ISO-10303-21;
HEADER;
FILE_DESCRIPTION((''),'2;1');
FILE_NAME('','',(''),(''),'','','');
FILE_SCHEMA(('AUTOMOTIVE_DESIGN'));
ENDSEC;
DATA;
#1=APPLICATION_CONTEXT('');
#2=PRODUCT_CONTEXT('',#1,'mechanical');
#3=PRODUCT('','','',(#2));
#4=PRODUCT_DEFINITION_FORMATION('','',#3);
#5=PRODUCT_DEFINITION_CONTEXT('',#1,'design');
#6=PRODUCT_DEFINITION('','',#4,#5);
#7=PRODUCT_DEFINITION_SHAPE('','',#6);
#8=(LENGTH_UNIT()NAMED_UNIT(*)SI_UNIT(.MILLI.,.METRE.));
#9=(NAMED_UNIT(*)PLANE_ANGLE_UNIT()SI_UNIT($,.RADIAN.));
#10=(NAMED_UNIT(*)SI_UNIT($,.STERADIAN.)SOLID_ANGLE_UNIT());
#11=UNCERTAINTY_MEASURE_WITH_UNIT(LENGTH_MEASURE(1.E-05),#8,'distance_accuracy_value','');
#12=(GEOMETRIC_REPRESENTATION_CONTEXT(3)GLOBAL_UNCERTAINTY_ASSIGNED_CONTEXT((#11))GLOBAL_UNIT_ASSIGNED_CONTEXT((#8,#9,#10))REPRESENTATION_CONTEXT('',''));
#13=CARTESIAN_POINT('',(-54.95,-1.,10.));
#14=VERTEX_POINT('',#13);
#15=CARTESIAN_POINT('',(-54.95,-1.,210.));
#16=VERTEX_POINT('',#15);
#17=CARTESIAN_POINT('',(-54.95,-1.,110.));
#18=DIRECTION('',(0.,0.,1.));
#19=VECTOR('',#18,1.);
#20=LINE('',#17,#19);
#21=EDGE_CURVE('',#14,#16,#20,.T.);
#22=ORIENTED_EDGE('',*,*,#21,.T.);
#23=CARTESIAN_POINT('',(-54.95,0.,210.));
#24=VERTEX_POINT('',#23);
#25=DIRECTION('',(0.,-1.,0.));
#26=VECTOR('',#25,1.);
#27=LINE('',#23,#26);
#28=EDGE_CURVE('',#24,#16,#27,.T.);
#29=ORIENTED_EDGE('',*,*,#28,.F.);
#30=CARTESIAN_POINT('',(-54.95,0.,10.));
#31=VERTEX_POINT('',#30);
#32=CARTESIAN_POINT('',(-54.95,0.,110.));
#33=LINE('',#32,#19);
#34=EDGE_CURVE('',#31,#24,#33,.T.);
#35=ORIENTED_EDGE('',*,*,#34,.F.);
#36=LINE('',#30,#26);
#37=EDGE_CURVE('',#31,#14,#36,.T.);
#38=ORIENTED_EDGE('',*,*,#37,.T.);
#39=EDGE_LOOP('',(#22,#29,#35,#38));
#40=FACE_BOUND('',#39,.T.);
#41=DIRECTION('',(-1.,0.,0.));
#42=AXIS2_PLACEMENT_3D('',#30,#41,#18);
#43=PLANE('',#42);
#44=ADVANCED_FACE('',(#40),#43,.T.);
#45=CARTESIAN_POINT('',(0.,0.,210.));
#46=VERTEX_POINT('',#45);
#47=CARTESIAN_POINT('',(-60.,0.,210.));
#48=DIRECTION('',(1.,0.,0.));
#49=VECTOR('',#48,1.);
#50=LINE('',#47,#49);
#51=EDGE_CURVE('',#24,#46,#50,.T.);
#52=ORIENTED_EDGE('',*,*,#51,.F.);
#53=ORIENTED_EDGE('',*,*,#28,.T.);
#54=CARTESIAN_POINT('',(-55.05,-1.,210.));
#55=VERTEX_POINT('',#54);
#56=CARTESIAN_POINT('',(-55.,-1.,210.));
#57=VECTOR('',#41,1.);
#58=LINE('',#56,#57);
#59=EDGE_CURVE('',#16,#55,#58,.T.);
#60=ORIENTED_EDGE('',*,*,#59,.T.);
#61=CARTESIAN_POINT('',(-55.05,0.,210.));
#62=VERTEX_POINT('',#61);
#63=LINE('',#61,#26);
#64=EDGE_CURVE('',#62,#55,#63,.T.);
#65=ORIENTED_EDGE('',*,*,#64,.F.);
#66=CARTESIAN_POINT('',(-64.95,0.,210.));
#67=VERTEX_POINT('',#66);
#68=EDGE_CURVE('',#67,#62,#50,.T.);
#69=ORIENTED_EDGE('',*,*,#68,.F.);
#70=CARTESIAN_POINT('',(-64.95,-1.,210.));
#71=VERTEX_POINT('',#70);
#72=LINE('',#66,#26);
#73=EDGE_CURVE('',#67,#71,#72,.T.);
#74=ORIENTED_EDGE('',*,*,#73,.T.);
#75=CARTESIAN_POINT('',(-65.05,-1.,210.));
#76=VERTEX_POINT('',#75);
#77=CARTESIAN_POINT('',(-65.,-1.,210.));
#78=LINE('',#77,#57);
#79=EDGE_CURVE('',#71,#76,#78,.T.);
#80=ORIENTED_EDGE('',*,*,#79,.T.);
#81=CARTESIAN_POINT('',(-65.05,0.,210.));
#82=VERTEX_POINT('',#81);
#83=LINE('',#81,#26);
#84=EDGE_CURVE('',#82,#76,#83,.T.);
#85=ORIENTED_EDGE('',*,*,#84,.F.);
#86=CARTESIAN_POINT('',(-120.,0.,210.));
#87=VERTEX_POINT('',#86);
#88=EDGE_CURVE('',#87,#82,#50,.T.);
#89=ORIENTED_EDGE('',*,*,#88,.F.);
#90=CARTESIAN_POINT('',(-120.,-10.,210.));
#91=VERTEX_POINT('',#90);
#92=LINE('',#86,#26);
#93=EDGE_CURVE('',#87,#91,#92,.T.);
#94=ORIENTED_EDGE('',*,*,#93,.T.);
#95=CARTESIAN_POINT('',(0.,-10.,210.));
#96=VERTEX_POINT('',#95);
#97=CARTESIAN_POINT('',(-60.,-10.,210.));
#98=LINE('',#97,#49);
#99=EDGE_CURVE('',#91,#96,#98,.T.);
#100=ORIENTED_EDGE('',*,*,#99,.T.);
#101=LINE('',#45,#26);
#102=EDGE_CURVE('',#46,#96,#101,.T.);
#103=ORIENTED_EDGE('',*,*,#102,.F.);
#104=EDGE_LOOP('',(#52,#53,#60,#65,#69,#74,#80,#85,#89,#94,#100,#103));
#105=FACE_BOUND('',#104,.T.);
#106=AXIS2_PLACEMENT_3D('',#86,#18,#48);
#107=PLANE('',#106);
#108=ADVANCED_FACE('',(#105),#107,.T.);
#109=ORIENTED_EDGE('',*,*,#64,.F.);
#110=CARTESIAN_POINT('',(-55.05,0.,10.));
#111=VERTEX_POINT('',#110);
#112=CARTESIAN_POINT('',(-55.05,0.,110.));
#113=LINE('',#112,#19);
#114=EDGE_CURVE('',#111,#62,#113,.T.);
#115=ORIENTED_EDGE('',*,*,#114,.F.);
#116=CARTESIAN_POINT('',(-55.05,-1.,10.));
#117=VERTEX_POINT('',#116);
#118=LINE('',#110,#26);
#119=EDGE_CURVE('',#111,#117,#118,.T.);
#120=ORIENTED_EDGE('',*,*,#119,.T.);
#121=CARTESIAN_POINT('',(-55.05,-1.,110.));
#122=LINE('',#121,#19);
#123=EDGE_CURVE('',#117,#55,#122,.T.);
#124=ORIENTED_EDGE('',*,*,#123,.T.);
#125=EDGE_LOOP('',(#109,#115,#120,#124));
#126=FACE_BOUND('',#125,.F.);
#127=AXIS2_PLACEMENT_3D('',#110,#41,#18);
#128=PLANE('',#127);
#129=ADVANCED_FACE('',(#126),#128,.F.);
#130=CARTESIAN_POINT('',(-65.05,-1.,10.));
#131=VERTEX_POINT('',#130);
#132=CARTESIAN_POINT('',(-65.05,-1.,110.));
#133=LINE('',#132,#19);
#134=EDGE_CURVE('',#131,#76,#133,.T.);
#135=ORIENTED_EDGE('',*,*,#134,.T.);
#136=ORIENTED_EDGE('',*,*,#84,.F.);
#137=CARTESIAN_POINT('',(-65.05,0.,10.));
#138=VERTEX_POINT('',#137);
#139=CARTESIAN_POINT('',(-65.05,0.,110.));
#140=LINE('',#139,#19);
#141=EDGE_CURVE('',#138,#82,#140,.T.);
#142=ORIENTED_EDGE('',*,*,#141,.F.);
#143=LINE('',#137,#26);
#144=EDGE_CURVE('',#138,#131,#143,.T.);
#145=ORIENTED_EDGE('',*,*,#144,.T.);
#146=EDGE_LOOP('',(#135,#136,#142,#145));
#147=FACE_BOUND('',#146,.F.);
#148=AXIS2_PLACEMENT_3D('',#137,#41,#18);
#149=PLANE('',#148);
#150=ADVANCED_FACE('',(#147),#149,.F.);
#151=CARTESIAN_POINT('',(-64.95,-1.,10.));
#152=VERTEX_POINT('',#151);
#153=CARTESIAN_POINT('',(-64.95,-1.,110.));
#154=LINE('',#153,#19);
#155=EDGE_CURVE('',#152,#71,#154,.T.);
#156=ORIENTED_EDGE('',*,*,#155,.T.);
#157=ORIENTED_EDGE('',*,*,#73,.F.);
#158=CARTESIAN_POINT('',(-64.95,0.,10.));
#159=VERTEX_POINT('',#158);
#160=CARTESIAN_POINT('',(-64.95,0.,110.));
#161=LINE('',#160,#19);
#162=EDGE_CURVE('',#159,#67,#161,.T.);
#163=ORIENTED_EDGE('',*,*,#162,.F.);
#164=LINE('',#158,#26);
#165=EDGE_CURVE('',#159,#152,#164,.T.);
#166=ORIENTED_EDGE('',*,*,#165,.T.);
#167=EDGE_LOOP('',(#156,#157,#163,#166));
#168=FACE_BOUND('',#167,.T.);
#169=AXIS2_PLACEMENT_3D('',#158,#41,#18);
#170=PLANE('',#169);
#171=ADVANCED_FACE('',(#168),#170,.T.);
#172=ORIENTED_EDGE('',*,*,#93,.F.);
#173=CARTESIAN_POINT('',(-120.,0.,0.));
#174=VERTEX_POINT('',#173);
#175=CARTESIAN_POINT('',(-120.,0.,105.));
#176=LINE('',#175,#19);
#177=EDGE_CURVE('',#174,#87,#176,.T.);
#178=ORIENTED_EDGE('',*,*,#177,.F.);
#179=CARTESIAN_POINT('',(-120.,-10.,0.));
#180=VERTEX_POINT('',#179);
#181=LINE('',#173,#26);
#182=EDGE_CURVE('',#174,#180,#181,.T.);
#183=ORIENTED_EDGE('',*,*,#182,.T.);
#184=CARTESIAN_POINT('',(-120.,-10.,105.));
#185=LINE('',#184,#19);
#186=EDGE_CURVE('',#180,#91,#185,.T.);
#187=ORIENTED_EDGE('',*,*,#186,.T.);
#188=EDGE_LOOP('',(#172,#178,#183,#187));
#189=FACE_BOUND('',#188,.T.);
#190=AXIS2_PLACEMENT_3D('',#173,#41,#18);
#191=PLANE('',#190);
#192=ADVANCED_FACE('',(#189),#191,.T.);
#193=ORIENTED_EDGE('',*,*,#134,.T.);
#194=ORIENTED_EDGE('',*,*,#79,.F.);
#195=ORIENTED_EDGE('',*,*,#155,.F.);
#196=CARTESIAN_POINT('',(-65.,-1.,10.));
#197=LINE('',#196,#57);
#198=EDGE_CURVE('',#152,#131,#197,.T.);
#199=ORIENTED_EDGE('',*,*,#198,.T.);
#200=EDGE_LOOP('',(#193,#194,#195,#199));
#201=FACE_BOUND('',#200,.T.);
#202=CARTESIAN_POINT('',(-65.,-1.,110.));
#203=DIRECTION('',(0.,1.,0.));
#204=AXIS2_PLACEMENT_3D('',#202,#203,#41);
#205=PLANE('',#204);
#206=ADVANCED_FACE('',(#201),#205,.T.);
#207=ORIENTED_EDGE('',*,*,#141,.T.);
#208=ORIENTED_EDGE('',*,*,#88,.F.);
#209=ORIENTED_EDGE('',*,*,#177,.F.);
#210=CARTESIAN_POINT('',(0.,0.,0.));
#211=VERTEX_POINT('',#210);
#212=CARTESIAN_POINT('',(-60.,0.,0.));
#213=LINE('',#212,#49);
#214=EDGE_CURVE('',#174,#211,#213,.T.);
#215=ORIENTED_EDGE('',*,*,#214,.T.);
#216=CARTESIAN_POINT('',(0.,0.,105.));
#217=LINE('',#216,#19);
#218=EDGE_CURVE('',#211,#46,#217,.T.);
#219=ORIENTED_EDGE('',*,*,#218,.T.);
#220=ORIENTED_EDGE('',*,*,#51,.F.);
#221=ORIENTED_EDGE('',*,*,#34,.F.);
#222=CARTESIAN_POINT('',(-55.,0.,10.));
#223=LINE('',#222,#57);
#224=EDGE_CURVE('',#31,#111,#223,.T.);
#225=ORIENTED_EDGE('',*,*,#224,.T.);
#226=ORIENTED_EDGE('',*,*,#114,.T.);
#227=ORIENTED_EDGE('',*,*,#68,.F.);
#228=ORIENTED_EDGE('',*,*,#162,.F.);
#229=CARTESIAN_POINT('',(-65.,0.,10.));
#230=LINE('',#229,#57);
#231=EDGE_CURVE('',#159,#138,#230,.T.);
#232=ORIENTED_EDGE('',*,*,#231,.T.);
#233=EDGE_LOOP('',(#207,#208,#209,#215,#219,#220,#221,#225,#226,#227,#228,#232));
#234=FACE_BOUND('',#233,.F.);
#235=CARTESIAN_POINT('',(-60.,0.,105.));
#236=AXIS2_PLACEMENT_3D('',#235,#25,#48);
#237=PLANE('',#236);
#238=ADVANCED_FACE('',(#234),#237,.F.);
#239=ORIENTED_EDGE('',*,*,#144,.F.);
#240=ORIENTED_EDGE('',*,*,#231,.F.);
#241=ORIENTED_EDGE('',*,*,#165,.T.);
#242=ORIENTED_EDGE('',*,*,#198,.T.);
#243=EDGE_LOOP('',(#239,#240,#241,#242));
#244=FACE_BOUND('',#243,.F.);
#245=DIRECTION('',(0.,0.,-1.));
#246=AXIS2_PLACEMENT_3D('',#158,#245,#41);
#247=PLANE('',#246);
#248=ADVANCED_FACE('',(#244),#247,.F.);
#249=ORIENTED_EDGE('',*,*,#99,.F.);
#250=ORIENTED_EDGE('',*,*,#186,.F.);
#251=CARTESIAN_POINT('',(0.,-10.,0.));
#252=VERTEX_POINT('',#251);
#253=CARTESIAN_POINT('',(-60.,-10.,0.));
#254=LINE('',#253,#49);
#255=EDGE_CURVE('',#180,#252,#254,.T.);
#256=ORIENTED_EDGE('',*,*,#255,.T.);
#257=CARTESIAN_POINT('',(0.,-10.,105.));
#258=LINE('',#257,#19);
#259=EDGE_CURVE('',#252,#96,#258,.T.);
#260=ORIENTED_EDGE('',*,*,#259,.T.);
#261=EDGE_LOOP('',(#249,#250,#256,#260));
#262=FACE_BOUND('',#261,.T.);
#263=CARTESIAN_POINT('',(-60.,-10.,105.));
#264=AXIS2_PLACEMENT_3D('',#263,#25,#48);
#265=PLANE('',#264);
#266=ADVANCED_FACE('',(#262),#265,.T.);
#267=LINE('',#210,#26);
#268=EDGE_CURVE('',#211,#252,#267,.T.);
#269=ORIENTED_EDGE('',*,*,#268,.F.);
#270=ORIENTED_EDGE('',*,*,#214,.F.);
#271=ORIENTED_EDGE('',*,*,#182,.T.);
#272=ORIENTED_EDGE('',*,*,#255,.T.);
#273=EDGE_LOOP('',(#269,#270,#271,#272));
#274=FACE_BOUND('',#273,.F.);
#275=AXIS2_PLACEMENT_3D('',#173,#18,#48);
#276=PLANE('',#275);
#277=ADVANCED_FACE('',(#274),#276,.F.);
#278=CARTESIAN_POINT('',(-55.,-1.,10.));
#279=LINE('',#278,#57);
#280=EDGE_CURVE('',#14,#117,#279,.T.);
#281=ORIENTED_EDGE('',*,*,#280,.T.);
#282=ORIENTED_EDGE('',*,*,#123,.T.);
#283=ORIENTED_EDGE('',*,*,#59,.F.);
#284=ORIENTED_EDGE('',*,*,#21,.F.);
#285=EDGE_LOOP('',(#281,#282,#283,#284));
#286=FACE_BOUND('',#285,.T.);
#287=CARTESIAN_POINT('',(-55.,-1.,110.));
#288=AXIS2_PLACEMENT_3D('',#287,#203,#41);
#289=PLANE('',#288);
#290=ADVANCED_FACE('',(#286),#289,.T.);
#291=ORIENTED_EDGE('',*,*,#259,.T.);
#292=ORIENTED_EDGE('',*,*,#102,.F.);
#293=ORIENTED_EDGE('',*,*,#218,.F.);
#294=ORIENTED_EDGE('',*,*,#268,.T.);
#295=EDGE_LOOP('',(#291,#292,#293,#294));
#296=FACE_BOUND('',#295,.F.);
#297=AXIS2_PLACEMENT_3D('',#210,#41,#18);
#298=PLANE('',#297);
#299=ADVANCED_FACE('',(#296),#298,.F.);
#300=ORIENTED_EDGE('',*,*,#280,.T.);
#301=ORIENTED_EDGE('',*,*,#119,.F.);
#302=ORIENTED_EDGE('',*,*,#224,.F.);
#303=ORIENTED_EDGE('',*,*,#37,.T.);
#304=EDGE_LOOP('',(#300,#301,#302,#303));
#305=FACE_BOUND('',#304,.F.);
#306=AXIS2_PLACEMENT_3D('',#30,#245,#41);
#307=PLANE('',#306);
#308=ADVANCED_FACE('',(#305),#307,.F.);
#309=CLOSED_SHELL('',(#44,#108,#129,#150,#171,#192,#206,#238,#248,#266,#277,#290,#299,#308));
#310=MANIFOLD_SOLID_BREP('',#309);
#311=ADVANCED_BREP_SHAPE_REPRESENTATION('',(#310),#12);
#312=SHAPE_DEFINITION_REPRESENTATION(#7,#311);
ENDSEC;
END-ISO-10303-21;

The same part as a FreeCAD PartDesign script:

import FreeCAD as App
import Part
import Sketcher
from FreeCAD import Vector

doc = App.newDocument("Part")
body = doc.addObject("PartDesign::Body", "Body")

sketch1 = body.newObject("Sketcher::SketchObject", "Sketch")
sketch1.AttachmentSupport = (doc.getObject("XZ_Plane"), [""])
sketch1.MapMode = "FlatFace"
sketch1.addGeometry([
    Part.LineSegment(Vector(-120, 210, 0), Vector(-120, 0, 0)),
    Part.LineSegment(Vector(-120, 0, 0), Vector(0, 0, 0)),
    Part.LineSegment(Vector(0, 0, 0), Vector(0, 210, 0)),
    Part.LineSegment(Vector(0, 210, 0), Vector(-120, 210, 0)),
], False)
sketch1.addConstraint([
    Sketcher.Constraint("Coincident", 0, 2, 1, 1),
    Sketcher.Constraint("Coincident", 1, 2, 2, 1),
    Sketcher.Constraint("Coincident", 2, 2, 3, 1),
    Sketcher.Constraint("Coincident", 3, 2, 0, 1),
    Sketcher.Constraint("Vertical", 0),
    Sketcher.Constraint("Horizontal", 1),
    Sketcher.Constraint("Vertical", 2),
    Sketcher.Constraint("Horizontal", 3),
    Sketcher.Constraint("Coincident", 1, 2, -1, 1),
    Sketcher.Constraint("DistanceX", 1, 1, 1, 2, 120.0),
    Sketcher.Constraint("DistanceY", 0, 2, 0, 1, 210.0),
])
pad1 = body.newObject("PartDesign::Pad", "Pad")
pad1.Profile = sketch1
pad1.Length = 10

sketch2 = body.newObject("Sketcher::SketchObject", "Sketch001")
sketch2.AttachmentSupport = (doc.getObject("XZ_Plane"), [""])
sketch2.MapMode = "FlatFace"
sketch2.addGeometry([
    Part.LineSegment(Vector(-54.95, 210, 0), Vector(-54.95, 10, 0)),
    Part.LineSegment(Vector(-54.95, 10, 0), Vector(-55.05, 10, 0)),
    Part.LineSegment(Vector(-55.05, 10, 0), Vector(-55.05, 210, 0)),
    Part.LineSegment(Vector(-55.05, 210, 0), Vector(-54.95, 210, 0)),
    Part.LineSegment(Vector(-64.95, 210, 0), Vector(-64.95, 10, 0)),
    Part.LineSegment(Vector(-64.95, 10, 0), Vector(-65.05, 10, 0)),
    Part.LineSegment(Vector(-65.05, 10, 0), Vector(-65.05, 210, 0)),
    Part.LineSegment(Vector(-65.05, 210, 0), Vector(-64.95, 210, 0)),
], False)
sketch2.addConstraint([
    Sketcher.Constraint("Coincident", 0, 2, 1, 1),
    Sketcher.Constraint("Coincident", 1, 2, 2, 1),
    Sketcher.Constraint("Coincident", 2, 2, 3, 1),
    Sketcher.Constraint("Coincident", 3, 2, 0, 1),
    Sketcher.Constraint("Coincident", 4, 2, 5, 1),
    Sketcher.Constraint("Coincident", 5, 2, 6, 1),
    Sketcher.Constraint("Coincident", 6, 2, 7, 1),
    Sketcher.Constraint("Coincident", 7, 2, 4, 1),
    Sketcher.Constraint("Vertical", 0),
    Sketcher.Constraint("Horizontal", 1),
    Sketcher.Constraint("Vertical", 2),
    Sketcher.Constraint("Horizontal", 3),
    Sketcher.Constraint("Vertical", 4),
    Sketcher.Constraint("Horizontal", 5),
    Sketcher.Constraint("Vertical", 6),
    Sketcher.Constraint("Horizontal", 7),
    Sketcher.Constraint("Horizontal", 1, 2, 4, 2),
    Sketcher.Constraint("Horizontal", 3, 2, 6, 2),
    Sketcher.Constraint("Equal", 3, 5),
    Sketcher.Constraint("DistanceY", 0, 2, 0, 1, 200.0),
    Sketcher.Constraint("DistanceX", 1, 2, 1, 1, 0.1),
    Sketcher.Constraint("DistanceY", -1, 1, 0, 2, 10.0),
    Sketcher.Constraint("DistanceX", 4, 2, 0, 2, 10.0),
    Sketcher.Constraint("DistanceX", 0, 2, -1, 1, 54.95),
])
pocket1 = body.newObject("PartDesign::Pocket", "Pocket")
pocket1.Profile = sketch2
pocket1.Length = 1
pocket1.Reversed = True

doc.recompute()
